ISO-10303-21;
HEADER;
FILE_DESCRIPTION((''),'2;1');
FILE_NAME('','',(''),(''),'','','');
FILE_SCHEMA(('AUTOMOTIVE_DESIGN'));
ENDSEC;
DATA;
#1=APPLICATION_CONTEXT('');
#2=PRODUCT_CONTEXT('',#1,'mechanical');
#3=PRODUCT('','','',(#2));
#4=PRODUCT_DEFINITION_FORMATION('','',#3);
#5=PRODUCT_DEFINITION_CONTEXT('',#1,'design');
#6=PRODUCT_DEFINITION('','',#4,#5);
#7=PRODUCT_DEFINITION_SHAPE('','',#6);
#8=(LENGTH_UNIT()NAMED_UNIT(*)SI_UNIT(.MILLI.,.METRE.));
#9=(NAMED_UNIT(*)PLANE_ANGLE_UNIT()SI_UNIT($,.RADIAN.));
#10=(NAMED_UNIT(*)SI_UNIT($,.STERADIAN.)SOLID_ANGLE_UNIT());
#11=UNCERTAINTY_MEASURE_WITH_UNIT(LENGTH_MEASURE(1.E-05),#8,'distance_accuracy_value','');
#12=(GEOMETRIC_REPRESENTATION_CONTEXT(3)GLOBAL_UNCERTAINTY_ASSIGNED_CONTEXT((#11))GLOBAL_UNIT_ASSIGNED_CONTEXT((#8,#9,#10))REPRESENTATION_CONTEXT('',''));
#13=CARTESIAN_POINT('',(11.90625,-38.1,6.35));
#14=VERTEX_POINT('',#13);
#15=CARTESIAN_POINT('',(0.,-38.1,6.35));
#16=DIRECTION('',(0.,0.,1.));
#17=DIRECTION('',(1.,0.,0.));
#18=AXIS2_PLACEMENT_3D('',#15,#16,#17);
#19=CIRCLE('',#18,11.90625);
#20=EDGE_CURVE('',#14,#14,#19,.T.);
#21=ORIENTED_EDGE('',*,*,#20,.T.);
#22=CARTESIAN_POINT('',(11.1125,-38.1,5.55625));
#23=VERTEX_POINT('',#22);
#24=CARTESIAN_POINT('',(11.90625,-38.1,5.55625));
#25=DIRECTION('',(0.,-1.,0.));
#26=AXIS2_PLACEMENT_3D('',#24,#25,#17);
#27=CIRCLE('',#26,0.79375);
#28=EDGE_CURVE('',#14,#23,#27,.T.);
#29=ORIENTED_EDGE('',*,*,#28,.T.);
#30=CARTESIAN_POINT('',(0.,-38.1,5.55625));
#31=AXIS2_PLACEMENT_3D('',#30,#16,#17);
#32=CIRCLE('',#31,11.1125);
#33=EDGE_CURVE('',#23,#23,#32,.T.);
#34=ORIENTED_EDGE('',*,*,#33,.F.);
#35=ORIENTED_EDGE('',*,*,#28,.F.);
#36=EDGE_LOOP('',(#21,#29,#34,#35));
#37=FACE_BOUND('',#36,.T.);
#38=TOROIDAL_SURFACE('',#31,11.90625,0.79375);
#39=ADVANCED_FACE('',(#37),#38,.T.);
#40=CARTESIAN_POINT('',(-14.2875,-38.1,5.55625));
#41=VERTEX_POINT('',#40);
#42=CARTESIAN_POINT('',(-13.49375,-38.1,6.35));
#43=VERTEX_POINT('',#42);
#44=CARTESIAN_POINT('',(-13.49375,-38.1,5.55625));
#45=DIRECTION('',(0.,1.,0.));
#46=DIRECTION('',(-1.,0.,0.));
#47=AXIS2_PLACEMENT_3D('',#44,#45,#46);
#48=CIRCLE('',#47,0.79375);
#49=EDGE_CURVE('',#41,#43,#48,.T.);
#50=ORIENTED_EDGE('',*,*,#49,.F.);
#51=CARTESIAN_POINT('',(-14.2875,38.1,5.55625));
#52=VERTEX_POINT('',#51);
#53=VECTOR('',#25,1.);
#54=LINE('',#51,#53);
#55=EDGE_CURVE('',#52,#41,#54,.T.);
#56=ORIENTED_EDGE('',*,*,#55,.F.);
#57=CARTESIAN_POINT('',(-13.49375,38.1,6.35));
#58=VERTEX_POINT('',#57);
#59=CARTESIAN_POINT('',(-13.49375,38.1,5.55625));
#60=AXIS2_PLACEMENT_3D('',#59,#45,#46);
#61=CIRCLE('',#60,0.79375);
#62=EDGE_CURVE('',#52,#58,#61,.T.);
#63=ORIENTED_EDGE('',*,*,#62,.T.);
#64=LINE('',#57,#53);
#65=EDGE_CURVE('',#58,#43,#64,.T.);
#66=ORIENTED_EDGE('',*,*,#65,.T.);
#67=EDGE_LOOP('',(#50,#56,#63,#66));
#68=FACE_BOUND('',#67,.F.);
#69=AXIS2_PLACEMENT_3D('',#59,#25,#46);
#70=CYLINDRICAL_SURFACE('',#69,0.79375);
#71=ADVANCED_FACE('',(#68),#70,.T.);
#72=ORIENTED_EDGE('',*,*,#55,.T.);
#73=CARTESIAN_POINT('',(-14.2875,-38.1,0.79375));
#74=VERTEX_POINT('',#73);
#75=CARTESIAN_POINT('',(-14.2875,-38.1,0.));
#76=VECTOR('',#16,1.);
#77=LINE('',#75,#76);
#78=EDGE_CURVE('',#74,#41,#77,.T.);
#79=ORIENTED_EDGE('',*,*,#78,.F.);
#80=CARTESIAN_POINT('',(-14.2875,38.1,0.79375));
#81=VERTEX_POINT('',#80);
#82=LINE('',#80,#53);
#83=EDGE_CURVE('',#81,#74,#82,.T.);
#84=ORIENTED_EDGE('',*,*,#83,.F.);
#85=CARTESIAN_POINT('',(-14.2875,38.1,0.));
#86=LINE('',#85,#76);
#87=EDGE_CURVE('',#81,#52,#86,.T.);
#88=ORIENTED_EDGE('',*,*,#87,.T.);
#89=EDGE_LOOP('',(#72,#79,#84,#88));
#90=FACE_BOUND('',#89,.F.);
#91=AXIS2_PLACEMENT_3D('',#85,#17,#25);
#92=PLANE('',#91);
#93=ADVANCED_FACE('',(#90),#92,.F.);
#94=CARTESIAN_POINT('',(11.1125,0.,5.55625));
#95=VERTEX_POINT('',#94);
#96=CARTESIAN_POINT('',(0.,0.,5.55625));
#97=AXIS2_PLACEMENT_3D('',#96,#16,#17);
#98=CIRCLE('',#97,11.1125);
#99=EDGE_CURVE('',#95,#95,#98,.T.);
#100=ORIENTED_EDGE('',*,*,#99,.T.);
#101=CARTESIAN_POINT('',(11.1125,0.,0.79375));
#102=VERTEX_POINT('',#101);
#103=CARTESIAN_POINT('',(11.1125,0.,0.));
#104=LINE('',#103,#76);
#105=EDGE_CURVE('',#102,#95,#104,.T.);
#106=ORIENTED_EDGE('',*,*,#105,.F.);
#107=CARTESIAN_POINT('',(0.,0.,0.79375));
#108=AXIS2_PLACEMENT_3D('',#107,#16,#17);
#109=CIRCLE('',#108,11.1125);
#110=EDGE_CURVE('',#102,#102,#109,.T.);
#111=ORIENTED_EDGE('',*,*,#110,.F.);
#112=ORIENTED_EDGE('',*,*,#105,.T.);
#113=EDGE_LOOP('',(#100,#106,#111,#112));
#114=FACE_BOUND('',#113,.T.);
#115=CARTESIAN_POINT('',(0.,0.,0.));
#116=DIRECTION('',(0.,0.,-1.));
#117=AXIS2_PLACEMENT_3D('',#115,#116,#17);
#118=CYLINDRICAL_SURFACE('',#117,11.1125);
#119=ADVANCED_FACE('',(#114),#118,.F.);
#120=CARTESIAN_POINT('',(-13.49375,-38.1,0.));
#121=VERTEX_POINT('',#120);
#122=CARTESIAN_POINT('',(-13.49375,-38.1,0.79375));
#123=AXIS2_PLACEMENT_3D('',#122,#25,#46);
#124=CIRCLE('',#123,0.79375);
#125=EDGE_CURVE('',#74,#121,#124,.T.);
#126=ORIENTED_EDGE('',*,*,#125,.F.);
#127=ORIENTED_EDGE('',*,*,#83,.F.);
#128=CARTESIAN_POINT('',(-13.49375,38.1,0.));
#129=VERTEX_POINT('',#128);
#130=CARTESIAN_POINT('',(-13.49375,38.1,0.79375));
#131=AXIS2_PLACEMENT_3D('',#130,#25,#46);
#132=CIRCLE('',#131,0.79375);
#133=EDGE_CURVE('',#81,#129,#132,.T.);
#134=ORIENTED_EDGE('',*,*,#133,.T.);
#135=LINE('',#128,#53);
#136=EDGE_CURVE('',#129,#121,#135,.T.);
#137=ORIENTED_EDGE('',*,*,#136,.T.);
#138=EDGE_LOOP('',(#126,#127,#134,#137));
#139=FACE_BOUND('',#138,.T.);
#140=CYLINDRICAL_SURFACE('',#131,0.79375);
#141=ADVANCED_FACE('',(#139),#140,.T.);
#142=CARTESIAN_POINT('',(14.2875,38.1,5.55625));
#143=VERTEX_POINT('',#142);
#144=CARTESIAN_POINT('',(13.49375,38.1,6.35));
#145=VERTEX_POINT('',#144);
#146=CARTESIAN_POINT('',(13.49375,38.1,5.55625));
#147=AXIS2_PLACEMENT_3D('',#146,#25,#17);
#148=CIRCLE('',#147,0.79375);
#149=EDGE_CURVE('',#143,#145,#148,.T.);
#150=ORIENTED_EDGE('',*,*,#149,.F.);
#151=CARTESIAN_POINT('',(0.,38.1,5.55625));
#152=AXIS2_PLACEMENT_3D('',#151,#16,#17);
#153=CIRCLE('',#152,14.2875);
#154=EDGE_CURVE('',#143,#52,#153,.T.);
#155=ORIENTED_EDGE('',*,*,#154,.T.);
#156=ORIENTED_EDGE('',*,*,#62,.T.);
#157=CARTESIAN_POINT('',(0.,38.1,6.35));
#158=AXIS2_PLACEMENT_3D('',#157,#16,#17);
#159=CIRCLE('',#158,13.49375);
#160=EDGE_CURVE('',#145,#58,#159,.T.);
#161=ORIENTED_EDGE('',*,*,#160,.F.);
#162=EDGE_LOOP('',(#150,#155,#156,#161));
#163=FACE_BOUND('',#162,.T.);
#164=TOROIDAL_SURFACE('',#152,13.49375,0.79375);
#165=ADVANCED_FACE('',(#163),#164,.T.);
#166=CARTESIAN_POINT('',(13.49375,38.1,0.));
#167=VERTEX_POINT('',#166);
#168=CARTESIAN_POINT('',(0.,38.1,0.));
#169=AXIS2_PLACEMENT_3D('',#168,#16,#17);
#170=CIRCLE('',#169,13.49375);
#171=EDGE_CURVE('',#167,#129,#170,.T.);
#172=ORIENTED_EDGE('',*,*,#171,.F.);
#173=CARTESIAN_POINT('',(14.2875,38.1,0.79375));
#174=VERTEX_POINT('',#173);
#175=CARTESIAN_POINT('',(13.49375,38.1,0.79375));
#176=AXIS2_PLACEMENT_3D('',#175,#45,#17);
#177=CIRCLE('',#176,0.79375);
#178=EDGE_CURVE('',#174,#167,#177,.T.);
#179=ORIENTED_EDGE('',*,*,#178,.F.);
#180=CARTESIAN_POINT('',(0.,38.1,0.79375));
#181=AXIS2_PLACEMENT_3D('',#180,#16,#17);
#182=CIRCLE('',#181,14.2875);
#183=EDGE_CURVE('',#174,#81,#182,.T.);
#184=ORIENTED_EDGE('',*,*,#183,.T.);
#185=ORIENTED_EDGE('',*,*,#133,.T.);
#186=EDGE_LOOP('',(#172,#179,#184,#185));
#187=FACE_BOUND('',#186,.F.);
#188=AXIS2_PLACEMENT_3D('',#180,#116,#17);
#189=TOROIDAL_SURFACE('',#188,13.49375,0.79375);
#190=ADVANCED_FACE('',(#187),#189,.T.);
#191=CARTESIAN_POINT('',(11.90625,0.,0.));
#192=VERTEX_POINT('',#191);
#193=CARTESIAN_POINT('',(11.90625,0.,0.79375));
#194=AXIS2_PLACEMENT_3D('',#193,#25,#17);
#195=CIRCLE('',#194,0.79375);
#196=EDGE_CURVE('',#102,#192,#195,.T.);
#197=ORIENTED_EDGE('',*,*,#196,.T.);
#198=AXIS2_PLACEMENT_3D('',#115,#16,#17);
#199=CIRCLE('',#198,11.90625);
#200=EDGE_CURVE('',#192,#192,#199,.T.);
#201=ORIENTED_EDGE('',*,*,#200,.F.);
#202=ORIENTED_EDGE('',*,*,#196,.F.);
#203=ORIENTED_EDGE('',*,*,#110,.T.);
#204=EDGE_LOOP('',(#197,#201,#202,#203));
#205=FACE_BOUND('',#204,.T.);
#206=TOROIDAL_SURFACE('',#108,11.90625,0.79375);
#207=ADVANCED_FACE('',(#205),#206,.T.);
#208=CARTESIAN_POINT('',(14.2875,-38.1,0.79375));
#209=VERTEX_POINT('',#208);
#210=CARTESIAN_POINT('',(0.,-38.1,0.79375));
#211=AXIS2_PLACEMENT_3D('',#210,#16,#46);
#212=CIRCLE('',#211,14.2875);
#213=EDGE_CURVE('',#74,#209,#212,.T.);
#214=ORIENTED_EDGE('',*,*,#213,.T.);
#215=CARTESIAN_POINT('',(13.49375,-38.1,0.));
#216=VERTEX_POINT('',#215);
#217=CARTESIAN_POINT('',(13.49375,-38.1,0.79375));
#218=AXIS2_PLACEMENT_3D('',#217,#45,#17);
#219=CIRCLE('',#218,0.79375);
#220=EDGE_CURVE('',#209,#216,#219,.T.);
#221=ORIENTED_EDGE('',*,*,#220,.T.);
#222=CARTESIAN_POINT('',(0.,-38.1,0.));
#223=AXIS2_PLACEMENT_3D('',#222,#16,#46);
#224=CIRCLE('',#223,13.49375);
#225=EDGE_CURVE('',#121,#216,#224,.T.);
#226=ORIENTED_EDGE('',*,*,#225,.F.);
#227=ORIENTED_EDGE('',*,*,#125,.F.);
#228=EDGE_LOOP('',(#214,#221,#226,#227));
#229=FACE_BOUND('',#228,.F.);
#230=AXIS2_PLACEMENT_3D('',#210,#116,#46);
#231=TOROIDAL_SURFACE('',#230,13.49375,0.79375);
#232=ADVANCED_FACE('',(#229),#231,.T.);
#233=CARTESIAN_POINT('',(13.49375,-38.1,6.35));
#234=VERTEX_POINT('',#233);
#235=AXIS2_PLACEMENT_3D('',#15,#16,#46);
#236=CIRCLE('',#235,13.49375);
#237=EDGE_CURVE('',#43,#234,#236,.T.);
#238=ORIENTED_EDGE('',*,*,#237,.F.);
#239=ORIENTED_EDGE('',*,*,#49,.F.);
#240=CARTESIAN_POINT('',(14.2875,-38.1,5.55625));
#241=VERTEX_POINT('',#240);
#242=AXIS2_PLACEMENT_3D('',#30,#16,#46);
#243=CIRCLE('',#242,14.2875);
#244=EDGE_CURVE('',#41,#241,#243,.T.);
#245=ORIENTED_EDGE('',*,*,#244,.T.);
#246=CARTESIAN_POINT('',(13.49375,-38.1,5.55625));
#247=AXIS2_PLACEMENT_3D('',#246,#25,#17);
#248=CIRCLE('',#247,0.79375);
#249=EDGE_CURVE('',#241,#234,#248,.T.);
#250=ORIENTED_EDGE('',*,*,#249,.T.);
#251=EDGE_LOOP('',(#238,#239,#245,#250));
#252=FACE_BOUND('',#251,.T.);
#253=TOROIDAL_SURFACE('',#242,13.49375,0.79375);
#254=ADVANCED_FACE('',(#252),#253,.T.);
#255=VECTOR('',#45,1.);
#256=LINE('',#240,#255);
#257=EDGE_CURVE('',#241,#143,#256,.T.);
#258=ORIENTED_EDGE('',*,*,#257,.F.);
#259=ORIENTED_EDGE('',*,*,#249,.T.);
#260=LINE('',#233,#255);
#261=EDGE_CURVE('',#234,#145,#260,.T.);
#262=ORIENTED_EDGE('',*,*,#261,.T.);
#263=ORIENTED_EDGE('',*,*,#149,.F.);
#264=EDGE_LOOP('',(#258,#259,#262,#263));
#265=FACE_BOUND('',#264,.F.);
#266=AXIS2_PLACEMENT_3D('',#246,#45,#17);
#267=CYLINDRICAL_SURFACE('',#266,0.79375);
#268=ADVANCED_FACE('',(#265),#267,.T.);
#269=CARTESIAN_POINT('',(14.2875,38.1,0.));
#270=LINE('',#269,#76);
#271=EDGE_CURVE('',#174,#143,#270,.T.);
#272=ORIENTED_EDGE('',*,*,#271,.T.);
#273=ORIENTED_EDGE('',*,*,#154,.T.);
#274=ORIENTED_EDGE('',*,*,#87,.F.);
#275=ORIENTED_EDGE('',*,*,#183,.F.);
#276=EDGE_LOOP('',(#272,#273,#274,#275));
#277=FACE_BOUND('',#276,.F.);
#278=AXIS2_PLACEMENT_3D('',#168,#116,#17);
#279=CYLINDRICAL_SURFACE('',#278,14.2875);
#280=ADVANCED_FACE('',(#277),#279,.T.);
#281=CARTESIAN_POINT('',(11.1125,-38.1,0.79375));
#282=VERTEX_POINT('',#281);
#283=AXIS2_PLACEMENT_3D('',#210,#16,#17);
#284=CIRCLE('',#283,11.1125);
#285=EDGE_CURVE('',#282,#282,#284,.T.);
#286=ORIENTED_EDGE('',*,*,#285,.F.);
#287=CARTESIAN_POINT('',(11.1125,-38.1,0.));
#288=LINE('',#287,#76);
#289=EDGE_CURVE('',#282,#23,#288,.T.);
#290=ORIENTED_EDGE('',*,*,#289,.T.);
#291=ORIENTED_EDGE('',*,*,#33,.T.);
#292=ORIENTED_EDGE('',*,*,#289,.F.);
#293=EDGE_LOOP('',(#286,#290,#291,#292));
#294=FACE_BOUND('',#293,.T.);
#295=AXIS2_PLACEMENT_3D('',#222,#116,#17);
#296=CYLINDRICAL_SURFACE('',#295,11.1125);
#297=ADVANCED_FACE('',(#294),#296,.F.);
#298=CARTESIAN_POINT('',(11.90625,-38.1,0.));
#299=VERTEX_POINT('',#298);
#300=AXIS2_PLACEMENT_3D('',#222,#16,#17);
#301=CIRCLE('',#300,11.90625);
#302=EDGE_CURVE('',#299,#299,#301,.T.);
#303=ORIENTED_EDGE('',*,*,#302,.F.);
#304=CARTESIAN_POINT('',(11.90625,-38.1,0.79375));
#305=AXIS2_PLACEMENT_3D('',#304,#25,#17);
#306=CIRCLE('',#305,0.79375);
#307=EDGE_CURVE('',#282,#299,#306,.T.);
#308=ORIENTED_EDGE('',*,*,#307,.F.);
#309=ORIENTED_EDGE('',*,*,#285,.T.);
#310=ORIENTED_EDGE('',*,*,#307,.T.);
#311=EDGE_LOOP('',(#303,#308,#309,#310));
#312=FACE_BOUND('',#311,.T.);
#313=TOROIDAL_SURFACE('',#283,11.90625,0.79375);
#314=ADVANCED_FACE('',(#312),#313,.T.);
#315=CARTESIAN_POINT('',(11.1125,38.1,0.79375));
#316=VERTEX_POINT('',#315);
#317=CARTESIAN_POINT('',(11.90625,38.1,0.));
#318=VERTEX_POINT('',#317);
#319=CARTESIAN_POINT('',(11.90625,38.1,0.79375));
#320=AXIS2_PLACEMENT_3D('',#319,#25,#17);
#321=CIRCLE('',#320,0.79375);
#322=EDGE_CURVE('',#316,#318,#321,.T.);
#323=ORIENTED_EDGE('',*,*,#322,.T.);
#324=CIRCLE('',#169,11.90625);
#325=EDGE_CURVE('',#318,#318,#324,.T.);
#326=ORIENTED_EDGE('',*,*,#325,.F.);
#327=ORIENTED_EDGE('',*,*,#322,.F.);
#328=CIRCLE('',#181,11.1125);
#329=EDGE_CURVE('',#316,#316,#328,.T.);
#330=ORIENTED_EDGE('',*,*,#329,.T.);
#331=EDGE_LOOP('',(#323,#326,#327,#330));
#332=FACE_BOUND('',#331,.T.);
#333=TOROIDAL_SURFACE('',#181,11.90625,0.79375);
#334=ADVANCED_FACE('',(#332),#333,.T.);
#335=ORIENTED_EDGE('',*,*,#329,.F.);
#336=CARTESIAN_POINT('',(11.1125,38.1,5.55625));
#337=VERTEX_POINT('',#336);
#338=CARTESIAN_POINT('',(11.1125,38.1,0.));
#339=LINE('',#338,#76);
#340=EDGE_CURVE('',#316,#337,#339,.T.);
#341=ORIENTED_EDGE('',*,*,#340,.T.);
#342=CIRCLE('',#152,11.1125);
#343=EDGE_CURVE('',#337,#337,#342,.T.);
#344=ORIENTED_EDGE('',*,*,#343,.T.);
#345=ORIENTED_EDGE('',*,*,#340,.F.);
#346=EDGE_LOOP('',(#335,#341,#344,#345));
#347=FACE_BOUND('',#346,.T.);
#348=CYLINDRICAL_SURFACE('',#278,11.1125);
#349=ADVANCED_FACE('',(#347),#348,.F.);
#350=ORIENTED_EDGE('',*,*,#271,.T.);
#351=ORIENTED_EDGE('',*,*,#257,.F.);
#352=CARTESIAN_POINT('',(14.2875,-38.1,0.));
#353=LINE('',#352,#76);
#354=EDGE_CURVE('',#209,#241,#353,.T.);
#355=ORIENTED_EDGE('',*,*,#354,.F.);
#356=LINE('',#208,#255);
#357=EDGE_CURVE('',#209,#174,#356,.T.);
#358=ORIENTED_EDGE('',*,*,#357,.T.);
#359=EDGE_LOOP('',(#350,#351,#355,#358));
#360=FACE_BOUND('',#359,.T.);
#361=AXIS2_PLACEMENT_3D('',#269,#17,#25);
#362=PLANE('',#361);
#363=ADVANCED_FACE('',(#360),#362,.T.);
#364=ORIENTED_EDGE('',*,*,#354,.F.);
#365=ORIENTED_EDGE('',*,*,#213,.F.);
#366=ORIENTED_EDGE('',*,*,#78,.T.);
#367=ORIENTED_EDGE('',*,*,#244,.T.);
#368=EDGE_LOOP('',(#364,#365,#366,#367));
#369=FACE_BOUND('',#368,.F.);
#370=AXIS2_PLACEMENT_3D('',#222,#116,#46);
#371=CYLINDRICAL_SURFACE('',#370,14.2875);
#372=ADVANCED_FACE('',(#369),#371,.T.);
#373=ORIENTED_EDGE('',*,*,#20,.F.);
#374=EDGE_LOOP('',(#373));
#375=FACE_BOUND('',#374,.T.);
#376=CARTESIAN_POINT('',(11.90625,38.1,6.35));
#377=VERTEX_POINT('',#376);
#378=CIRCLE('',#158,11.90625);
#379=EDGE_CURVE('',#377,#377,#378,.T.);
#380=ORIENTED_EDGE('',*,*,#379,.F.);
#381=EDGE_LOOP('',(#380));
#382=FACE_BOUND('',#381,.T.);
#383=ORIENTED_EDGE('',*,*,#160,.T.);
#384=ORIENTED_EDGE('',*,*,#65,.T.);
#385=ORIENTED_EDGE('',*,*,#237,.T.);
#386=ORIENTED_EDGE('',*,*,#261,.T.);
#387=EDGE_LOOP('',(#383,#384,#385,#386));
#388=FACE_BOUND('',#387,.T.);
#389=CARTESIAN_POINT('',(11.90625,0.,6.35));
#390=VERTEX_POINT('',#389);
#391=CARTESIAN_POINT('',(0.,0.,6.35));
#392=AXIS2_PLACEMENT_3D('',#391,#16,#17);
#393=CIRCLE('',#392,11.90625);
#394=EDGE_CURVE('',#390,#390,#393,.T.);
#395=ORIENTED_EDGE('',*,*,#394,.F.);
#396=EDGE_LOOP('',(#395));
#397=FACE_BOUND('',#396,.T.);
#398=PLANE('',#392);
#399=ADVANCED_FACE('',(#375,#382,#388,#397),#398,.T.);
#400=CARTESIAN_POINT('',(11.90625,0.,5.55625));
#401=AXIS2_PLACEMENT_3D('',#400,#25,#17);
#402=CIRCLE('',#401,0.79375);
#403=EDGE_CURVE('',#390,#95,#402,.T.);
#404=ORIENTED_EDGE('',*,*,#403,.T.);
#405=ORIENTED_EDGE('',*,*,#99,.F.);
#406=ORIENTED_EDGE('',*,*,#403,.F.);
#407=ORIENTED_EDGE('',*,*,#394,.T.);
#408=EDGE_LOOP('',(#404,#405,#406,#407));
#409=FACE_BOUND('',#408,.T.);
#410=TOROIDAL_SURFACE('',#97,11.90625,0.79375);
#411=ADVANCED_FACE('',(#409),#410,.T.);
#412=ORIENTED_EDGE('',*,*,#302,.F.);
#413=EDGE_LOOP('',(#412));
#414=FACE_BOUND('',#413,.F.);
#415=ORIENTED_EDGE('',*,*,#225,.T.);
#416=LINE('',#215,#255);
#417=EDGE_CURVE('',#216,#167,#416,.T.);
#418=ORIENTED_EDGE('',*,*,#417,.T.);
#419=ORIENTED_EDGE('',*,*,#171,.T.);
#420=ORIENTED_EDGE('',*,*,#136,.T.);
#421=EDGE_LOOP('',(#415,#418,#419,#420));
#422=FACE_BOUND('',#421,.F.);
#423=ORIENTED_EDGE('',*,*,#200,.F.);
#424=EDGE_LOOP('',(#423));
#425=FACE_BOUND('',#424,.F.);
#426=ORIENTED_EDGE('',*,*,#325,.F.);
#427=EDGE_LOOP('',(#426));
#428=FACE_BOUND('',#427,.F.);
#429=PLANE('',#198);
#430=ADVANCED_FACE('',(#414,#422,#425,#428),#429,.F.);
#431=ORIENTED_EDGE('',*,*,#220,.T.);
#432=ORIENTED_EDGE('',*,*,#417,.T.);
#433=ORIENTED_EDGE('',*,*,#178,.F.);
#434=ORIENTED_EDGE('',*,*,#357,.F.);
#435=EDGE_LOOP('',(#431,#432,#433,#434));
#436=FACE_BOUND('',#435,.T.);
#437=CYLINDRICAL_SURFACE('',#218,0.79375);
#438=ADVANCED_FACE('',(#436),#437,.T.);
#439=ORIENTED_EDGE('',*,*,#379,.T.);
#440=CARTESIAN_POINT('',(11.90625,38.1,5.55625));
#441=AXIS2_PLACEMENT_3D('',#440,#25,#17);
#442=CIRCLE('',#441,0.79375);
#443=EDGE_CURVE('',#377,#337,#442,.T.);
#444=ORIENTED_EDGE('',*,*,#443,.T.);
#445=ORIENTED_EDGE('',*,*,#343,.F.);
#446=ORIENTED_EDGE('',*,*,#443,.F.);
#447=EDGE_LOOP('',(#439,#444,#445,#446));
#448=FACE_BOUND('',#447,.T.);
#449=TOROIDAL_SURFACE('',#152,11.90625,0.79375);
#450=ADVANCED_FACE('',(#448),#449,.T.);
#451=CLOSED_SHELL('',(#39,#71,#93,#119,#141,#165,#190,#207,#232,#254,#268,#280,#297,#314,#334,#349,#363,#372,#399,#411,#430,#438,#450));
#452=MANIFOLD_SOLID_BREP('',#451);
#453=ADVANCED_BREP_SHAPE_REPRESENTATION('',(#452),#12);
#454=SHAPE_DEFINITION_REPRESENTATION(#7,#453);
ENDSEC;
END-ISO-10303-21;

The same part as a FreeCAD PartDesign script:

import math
import FreeCAD as App
import Part
import Sketcher
from FreeCAD import Vector
Q = App.Units.Quantity


def edges_at(feature, points):
    """Names of the edges that pass closest to the given points."""
    edges = feature.Shape.Edges
    near = lambda p: min(range(len(edges)), key=lambda i: edges[i].distToShape(Part.Vertex(*p))[0])
    return sorted({f"Edge{near(p) + 1}" for p in points})

doc = App.newDocument("Part")
body = doc.addObject("PartDesign::Body", "Body")

sketch1 = doc.addObject("Sketcher::SketchObject", "Sketch")
body.addObject(sketch1)
sketch1.AttachmentSupport = (doc.XY_Plane, [""])
sketch1.MapMode = "FlatFace"
sketch1.addGeometry(Part.ArcOfCircle(Part.Circle(Vector(0, 38.1, 0), Vector(0, 0, 1), 14.2875), math.radians(0), math.radians(180)), False)
sketch1.addGeometry(Part.LineSegment(Vector(-14.2875, 38.1, 0), Vector(-14.2875, -38.1, 0)), False)
sketch1.addGeometry(Part.ArcOfCircle(Part.Circle(Vector(0, -38.1, 0), Vector(0, 0, 1), 14.2875), math.radians(180), math.radians(360)), False)
sketch1.addGeometry(Part.LineSegment(Vector(14.2875, -38.1, 0), Vector(14.2875, 38.1, 0)), False)
sketch1.addGeometry(Part.Circle(Vector(0, -38.1, 0), Vector(0, 0, 1), 11.1125), False)
sketch1.addGeometry(Part.Circle(Vector(0, 0, 0), Vector(0, 0, 1), 11.1125), False)
sketch1.addGeometry(Part.Circle(Vector(0, 38.1, 0), Vector(0, 0, 1), 11.1125), False)
sketch1.addConstraint(Sketcher.Constraint("Tangent", 0, 2, 1, 1))
sketch1.addConstraint(Sketcher.Constraint("Tangent", 1, 2, 2, 1))
sketch1.addConstraint(Sketcher.Constraint("Tangent", 2, 2, 3, 1))
sketch1.addConstraint(Sketcher.Constraint("Tangent", 3, 2, 0, 1))
sketch1.addConstraint(Sketcher.Constraint("Vertical", 1))
sketch1.addConstraint(Sketcher.Constraint("Vertical", 3))
sketch1.addConstraint(Sketcher.Constraint("Coincident", 5, 3, -1, 1))
sketch1.addConstraint(Sketcher.Constraint("Coincident", 4, 3, 2, 3))
sketch1.addConstraint(Sketcher.Constraint("Coincident", 6, 3, 0, 3))
sketch1.addConstraint(Sketcher.Constraint("Equal", 4, 5))
sketch1.addConstraint(Sketcher.Constraint("Equal", 5, 6))
sketch1.addConstraint(Sketcher.Constraint("Symmetric", 0, 3, 2, 3, -1, 1))
sketch1.addConstraint(Sketcher.Constraint("DistanceY", 1, 2, 1, 1, Q("3 in")))
sketch1.addConstraint(Sketcher.Constraint("Diameter", 4, Q("0.875 in")))
sketch1.addConstraint(Sketcher.Constraint("Radius", 0, Q("0.5625 in")))
pad1 = doc.addObject("PartDesign::Pad", "Pad")
body.addObject(pad1)
pad1.Profile = sketch1
pad1.Length = Q("0.25 in")
doc.recompute()

fillet = doc.addObject("PartDesign::Fillet", "Fillet")
body.addObject(fillet)
fillet.Base = (pad1, edges_at(pad1, [
    (0, 52.388, 0),
    (-14.287, 0, 0),
    (0, -52.388, 0),
    (14.287, 0, 0),
    (-11.113, 0, 0),
    (-11.113, -38.1, 0),
    (-11.113, 38.1, 0),
]))
fillet.Radius = Q("0.03125 in")
doc.recompute()

fillet2 = doc.addObject("PartDesign::Fillet", "Fillet001")
body.addObject(fillet2)
fillet2.Base = (fillet, edges_at(fillet, [
    (0, 52.388, 6.35),
    (-14.287, 0, 6.35),
    (0, -52.388, 6.35),
    (14.287, 0, 6.35),
    (-11.113, 0, 6.35),
    (-11.113, -38.1, 6.35),
    (-11.113, 38.1, 6.35),
]))
fillet2.Radius = Q("0.03125 in")

doc.recompute()
